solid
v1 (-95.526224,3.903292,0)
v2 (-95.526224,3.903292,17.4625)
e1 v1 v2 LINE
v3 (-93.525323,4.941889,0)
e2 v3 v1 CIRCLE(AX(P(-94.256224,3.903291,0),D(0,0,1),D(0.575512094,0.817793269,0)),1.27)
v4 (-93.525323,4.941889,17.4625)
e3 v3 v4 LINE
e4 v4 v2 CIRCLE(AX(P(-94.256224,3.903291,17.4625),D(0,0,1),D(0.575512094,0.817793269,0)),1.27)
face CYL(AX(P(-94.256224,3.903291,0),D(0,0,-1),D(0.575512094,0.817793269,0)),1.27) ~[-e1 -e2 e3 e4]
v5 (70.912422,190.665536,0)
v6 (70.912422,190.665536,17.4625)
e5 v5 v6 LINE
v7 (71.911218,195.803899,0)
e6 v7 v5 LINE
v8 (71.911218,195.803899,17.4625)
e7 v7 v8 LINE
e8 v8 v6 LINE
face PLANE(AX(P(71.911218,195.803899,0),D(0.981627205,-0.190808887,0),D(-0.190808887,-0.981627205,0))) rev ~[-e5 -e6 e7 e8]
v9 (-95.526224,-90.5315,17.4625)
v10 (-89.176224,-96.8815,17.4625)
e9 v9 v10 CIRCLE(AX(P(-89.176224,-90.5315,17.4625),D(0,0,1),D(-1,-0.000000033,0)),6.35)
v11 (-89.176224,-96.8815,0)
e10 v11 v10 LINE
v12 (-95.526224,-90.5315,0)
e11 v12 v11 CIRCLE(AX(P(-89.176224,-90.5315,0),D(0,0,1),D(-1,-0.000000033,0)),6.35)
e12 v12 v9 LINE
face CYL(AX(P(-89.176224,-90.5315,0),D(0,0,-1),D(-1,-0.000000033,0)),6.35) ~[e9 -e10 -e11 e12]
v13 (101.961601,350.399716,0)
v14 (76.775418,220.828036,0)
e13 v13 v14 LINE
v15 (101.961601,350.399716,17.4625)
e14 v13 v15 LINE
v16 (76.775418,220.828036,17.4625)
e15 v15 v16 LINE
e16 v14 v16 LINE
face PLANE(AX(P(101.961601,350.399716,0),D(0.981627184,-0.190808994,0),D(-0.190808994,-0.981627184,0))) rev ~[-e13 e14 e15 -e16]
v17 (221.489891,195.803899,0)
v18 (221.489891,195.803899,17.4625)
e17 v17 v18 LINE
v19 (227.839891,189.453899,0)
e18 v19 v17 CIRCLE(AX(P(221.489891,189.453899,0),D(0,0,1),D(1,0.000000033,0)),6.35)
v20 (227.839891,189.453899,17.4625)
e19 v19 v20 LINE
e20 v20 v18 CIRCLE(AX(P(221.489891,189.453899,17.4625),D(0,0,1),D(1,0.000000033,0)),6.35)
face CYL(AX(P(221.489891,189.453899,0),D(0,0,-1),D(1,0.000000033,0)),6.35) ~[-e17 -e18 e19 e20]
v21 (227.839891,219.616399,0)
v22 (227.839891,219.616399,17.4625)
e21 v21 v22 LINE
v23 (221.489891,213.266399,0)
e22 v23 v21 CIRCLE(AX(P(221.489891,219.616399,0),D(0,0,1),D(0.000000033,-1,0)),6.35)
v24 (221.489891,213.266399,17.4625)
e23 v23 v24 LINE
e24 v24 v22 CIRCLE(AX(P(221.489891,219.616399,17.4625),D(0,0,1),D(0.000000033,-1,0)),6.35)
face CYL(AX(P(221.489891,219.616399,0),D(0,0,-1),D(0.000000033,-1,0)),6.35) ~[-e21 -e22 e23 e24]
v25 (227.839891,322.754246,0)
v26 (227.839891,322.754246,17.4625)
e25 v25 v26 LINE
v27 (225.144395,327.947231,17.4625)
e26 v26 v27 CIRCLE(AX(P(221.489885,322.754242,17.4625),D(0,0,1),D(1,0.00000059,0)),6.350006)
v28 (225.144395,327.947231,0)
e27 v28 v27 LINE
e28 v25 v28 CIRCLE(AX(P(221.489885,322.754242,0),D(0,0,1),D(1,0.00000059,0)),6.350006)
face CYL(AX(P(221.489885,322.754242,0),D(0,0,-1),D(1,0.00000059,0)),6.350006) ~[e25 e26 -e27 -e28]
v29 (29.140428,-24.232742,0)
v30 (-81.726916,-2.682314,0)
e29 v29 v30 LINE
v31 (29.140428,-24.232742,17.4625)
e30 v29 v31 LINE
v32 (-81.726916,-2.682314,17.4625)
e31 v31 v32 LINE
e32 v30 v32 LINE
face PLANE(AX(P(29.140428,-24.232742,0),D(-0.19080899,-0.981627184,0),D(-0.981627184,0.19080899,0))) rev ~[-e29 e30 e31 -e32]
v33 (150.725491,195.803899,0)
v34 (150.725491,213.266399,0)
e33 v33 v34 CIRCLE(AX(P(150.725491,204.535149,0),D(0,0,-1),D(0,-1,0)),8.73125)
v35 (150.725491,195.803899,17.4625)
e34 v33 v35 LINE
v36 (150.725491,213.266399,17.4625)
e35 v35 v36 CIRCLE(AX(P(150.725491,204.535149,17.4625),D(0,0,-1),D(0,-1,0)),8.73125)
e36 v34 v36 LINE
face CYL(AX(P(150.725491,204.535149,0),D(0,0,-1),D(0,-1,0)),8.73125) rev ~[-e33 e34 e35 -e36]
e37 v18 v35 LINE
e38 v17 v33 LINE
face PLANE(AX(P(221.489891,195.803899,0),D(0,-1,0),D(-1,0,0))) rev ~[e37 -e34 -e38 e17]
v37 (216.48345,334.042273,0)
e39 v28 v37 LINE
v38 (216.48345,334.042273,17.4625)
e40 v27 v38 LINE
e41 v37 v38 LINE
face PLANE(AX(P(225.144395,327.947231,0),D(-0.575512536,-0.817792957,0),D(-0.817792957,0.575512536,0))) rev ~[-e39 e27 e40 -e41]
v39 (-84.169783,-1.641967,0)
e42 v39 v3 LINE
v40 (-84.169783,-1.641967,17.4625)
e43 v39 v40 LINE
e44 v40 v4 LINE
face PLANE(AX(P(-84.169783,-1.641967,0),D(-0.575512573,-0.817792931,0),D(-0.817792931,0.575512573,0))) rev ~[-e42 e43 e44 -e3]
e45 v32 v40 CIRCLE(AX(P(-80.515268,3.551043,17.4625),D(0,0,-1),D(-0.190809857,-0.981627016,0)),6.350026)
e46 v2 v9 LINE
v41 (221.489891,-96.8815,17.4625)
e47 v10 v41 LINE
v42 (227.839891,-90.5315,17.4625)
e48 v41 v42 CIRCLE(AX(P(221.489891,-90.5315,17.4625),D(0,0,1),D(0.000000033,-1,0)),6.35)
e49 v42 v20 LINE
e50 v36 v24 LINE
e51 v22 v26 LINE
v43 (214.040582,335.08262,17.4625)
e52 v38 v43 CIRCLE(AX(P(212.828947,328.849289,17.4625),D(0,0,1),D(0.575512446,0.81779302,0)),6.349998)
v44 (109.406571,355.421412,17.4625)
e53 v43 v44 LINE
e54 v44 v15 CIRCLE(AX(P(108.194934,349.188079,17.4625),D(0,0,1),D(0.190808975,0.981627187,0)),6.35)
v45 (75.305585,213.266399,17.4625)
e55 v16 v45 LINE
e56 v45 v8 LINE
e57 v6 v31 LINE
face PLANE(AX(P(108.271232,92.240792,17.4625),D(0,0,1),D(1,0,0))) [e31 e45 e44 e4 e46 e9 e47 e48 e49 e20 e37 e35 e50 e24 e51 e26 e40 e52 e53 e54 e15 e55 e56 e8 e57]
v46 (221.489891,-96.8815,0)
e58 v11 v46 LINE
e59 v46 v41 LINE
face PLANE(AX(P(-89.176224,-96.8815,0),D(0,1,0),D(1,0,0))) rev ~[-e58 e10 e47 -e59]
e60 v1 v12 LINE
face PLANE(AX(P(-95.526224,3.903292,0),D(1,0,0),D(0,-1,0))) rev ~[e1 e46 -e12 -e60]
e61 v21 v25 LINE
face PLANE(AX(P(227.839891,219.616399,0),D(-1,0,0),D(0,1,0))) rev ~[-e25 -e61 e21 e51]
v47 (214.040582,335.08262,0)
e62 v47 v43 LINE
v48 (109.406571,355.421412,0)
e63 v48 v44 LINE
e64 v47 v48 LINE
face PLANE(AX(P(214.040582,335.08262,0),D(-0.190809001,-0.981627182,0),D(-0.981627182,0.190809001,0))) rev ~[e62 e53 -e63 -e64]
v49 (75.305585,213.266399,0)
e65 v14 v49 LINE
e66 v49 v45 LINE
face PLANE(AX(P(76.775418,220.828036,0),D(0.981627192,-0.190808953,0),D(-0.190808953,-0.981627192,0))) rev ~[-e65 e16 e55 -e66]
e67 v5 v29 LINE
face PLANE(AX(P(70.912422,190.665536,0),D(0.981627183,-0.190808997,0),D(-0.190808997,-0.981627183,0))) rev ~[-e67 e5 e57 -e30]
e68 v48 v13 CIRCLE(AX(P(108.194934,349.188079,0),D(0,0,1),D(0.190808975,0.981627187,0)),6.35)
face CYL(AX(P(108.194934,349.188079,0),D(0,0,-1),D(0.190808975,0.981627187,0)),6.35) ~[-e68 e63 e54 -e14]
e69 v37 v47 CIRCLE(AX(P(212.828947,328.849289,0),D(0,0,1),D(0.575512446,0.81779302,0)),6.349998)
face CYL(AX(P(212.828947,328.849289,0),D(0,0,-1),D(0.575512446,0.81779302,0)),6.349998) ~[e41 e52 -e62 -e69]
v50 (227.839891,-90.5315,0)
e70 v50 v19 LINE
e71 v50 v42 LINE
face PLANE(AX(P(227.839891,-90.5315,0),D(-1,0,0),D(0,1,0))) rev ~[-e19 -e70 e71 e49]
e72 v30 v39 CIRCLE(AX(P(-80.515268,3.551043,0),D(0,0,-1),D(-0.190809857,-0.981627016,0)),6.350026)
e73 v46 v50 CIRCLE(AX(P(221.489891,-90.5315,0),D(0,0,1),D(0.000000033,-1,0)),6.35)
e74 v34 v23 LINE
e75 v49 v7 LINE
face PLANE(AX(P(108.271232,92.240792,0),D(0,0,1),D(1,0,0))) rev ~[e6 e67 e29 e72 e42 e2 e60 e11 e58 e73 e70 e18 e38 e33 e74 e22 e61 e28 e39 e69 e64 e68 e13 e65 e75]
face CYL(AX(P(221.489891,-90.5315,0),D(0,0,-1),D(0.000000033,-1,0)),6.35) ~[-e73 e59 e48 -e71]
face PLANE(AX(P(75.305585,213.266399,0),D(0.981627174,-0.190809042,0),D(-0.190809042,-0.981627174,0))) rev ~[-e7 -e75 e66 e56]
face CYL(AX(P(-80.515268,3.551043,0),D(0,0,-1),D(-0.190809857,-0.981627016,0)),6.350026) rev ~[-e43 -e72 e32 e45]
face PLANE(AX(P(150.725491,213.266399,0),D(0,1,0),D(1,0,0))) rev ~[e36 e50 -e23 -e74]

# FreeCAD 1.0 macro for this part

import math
import FreeCAD as App
import Part
import Sketcher

V = App.Vector
Q = App.Units.Quantity

doc = App.newDocument("Part")
body = doc.addObject("PartDesign::Body", "Body")

sketch1 = doc.addObject("Sketcher::SketchObject", "Sketch")
body.addObject(sketch1)
sketch1.AttachmentSupport = (doc.XY_Plane, [""])
sketch1.MapMode = "FlatFace"
sketch1.addGeometry([
    Part.LineSegment(V(-84.169783, -1.641967, 0), V(-93.525323, 4.941889, 0)),
    Part.ArcOfCircle(Part.Circle(V(-94.256224, 3.903291, 0), V(0, 0, 1), 1.27), math.radians(54.864498), math.radians(179.999965)),
    Part.LineSegment(V(-95.526224, 3.903292, 0), V(-95.526224, -90.5315, 0)),
    Part.ArcOfCircle(Part.Circle(V(-89.176224, -90.5315, 0), V(0, 0, 1), 6.35), math.radians(-179.999998), math.radians(-90.000002)),
    Part.LineSegment(V(-89.176224, -96.8815, 0), V(221.489891, -96.8815, 0)),
    Part.ArcOfCircle(Part.Circle(V(221.489891, -90.5315, 0), V(0, 0, 1), 6.35), math.radians(-89.999998), math.radians(-0.000002)),
    Part.LineSegment(V(227.839891, -90.5315, 0), V(227.839891, 189.453899, 0)),
    Part.ArcOfCircle(Part.Circle(V(221.489891, 189.453899, 0), V(0, 0, 1), 6.35), math.radians(0.000002), math.radians(89.999998)),
    Part.LineSegment(V(221.489891, 195.803899, 0), V(150.725491, 195.803899, 0)),
    Part.ArcOfCircle(Part.Circle(V(150.725491, 204.535149, 0), V(0, 0, 1), 8.73125), math.radians(90), math.radians(270)),
    Part.LineSegment(V(150.725491, 213.266399, 0), V(221.489891, 213.266399, 0)),
    Part.ArcOfCircle(Part.Circle(V(221.489891, 219.616399, 0), V(0, 0, 1), 6.35), math.radians(-89.999998), math.radians(-0.000002)),
    Part.LineSegment(V(227.839891, 219.616399, 0), V(227.839891, 322.754246, 0)),
    Part.ArcOfCircle(Part.Circle(V(221.489885, 322.754242, 0), V(0, 0, 1), 6.350006), math.radians(0.000034), math.radians(54.864446)),
    Part.LineSegment(V(225.144395, 327.947231, 0), V(216.48345, 334.042273, 0)),
    Part.ArcOfCircle(Part.Circle(V(212.828947, 328.849289, 0), V(0, 0, 1), 6.349998), math.radians(54.864473), math.radians(79.000016)),
    Part.LineSegment(V(214.040582, 335.08262, 0), V(109.406571, 355.421412, 0)),
    Part.ArcOfCircle(Part.Circle(V(108.194934, 349.188079, 0), V(0, 0, 1), 6.35), math.radians(79.000001), math.radians(169.000002)),
    Part.LineSegment(V(101.961601, 350.399716, 0), V(76.775418, 220.828036, 0)),
    Part.LineSegment(V(76.775418, 220.828036, 0), V(75.305585, 213.266399, 0)),
    Part.LineSegment(V(75.305585, 213.266399, 0), V(71.911218, 195.803899, 0)),
    Part.LineSegment(V(71.911218, 195.803899, 0), V(70.912422, 190.665536, 0)),
    Part.LineSegment(V(70.912422, 190.665536, 0), V(29.140428, -24.232742, 0)),
    Part.LineSegment(V(29.140428, -24.232742, 0), V(-81.726916, -2.682314, 0)),
    Part.ArcOfCircle(Part.Circle(V(-80.515268, 3.551043, 0), V(0, 0, 1), 6.350026), math.radians(-125.135478), math.radians(-101.00005)),
], False)
sketch1.addConstraint([
    Sketcher.Constraint("Tangent", 0, 2, 1, 1),
    Sketcher.Constraint("Tangent", 1, 2, 2, 1),
    Sketcher.Constraint("Tangent", 2, 2, 3, 1),
    Sketcher.Constraint("Tangent", 3, 2, 4, 1),
    Sketcher.Constraint("Tangent", 4, 2, 5, 1),
    Sketcher.Constraint("Tangent", 5, 2, 6, 1),
    Sketcher.Constraint("Tangent", 6, 2, 7, 1),
    Sketcher.Constraint("Tangent", 7, 2, 8, 1),
    Sketcher.Constraint("Tangent", 8, 2, 9, 2),
    Sketcher.Constraint("Tangent", 9, 1, 10, 1),
    Sketcher.Constraint("Tangent", 10, 2, 11, 1),
    Sketcher.Constraint("Tangent", 11, 2, 12, 1),
    Sketcher.Constraint("Tangent", 12, 2, 13, 1),
    Sketcher.Constraint("Tangent", 13, 2, 14, 1),
    Sketcher.Constraint("Tangent", 14, 2, 15, 1),
    Sketcher.Constraint("Tangent", 15, 2, 16, 1),
    Sketcher.Constraint("Tangent", 16, 2, 17, 1),
    Sketcher.Constraint("Tangent", 17, 2, 18, 1),
    Sketcher.Constraint("Coincident", 18, 2, 19, 1),
    Sketcher.Constraint("Coincident", 19, 2, 20, 1),
    Sketcher.Constraint("Coincident", 20, 2, 21, 1),
    Sketcher.Constraint("Coincident", 21, 2, 22, 1),
    Sketcher.Constraint("Coincident", 22, 2, 23, 1),
    Sketcher.Constraint("Tangent", 23, 2, 24, 2),
    Sketcher.Constraint("Tangent", 24, 1, 0, 1),
    Sketcher.Constraint("Vertical", 2),
    Sketcher.Constraint("Horizontal", 4),
    Sketcher.Constraint("Vertical", 6),
    Sketcher.Constraint("Horizontal", 8),
    Sketcher.Constraint("Horizontal", 10),
    Sketcher.Constraint("Vertical", 12),
    Sketcher.Constraint("Equal", 3, 5),
    Sketcher.Constraint("Equal", 5, 7),
    Sketcher.Constraint("Equal", 7, 11),
    Sketcher.Constraint("Equal", 11, 15),
    Sketcher.Constraint("Equal", 15, 17),
    Sketcher.Constraint("Parallel", 0, 14),
    Sketcher.Constraint("Perpendicular", 16, 18),
    Sketcher.Constraint("Parallel", 18, 19),
    Sketcher.Constraint("Parallel", 19, 20),
    Sketcher.Constraint("Parallel", 20, 21),
    Sketcher.Constraint("Parallel", 21, 22),
    Sketcher.Constraint("Perpendicular", 22, 23),
    Sketcher.Constraint("Horizontal", 10, 2, 19, 2),
    Sketcher.Constraint("Horizontal", 8, 2, 20, 2),
    Sketcher.Constraint("Vertical", 7, 3, 11, 3),
    Sketcher.Constraint("Radius", 1, Q("0.05 in")),
    Sketcher.Constraint("Radius", 3, Q("0.25 in")),
    Sketcher.Constraint("Angle", 16, Q("169 deg")),
    Sketcher.Constraint("Radius", 9, Q("0.34375 in")),
    Sketcher.Constraint("DistanceX", 8, 2, 8, 1, Q("2.786 in")),
    Sketcher.Constraint("DistanceY", 21, 2, 18, 2, Q("1.1875 in")),
    Sketcher.Constraint("DistanceY", 6, 1, 6, 2, Q("279.985399 mm")),
    Sketcher.Constraint("Radius", 13, Q("6.350006 mm")),
    Sketcher.Constraint("Radius", 24, Q("6.350026 mm")),
    Sketcher.Constraint("DistanceY", 2, 2, 2, 1, Q("94.434792 mm")),
    Sketcher.Constraint("DistanceY", 3, 3, -1, 1, Q("90.5315 mm")),
    Sketcher.Constraint("DistanceX", -1, 1, 17, 2, Q("101.961601 mm")),
    Sketcher.Constraint("DistanceX", 1, 3, 0, 2, Q("0.730901 mm")),
    Sketcher.Constraint("DistanceX", 20, 2, 18, 2, Q("4.8642 mm")),
    Sketcher.Constraint("DistanceX", 4, 1, 4, 2, Q("310.666115 mm")),
    Sketcher.Constraint("DistanceY", 12, 1, 12, 2, Q("103.137847 mm")),
    Sketcher.Constraint("DistanceX", -1, 1, 5, 3, Q("221.489891 mm")),
    Sketcher.Constraint("DistanceY", -1, 1, 15, 3, Q("328.849289 mm")),
    Sketcher.Constraint("DistanceX", 24, 3, -1, 1, Q("80.515268 mm")),
])
pad1 = doc.addObject("PartDesign::Pad", "Pad")
body.addObject(pad1)
pad1.Profile = sketch1
pad1.Length = Q("0.6875 in")

doc.recompute()
